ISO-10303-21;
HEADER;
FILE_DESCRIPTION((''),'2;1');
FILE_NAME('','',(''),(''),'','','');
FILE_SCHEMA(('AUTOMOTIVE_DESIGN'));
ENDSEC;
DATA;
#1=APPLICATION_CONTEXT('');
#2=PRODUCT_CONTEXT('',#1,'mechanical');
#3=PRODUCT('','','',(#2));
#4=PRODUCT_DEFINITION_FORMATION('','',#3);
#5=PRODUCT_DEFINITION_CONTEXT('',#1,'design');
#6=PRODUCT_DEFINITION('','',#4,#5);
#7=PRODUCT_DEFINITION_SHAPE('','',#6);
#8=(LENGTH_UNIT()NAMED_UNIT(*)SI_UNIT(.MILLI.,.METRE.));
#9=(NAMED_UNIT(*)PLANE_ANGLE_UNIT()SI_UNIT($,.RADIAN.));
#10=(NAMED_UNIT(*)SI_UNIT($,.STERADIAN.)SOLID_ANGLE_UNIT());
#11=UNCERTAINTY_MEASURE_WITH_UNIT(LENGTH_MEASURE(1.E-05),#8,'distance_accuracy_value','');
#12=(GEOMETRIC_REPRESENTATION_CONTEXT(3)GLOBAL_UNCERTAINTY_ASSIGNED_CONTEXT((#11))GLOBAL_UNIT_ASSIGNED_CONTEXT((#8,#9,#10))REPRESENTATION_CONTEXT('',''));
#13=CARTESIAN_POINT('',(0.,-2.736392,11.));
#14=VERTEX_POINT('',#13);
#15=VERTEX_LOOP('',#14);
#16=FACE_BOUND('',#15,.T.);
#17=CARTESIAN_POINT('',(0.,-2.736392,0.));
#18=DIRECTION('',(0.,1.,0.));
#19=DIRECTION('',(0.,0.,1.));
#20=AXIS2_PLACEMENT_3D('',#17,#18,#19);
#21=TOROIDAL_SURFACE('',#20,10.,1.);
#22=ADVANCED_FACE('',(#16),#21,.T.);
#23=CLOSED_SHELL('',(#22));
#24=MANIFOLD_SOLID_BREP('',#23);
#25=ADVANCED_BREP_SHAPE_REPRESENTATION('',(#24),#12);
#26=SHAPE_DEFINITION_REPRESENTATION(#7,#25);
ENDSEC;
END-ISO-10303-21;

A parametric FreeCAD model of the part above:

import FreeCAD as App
import Part
import Sketcher

V = App.Vector
Q = App.Units.Quantity

doc = App.newDocument("Part")
body = doc.addObject("PartDesign::Body", "Body")

sketch1 = doc.addObject("Sketcher::SketchObject", "Sketch")
body.addObject(sketch1)
sketch1.AttachmentSupport = (doc.XY_Plane, [""])
sketch1.MapMode = "FlatFace"
sketch1.addGeometry(Part.Circle(V(10, -2.736392, 0), V(0, 0, 1), 1), False)
sketch1.addConstraint([
    Sketcher.Constraint("Diameter", 0, Q("2 mm")),
    Sketcher.Constraint("DistanceX", -1, 1, 0, 3, Q("10 mm")),
    Sketcher.Constraint("DistanceY", 0, 3, -1, 1, Q("2.736392 mm")),
])
revolution = doc.addObject("PartDesign::Revolution", "Revolution")
body.addObject(revolution)
revolution.Profile = sketch1
revolution.ReferenceAxis = (sketch1, ["V_Axis"])
revolution.Angle = 360

doc.recompute()
